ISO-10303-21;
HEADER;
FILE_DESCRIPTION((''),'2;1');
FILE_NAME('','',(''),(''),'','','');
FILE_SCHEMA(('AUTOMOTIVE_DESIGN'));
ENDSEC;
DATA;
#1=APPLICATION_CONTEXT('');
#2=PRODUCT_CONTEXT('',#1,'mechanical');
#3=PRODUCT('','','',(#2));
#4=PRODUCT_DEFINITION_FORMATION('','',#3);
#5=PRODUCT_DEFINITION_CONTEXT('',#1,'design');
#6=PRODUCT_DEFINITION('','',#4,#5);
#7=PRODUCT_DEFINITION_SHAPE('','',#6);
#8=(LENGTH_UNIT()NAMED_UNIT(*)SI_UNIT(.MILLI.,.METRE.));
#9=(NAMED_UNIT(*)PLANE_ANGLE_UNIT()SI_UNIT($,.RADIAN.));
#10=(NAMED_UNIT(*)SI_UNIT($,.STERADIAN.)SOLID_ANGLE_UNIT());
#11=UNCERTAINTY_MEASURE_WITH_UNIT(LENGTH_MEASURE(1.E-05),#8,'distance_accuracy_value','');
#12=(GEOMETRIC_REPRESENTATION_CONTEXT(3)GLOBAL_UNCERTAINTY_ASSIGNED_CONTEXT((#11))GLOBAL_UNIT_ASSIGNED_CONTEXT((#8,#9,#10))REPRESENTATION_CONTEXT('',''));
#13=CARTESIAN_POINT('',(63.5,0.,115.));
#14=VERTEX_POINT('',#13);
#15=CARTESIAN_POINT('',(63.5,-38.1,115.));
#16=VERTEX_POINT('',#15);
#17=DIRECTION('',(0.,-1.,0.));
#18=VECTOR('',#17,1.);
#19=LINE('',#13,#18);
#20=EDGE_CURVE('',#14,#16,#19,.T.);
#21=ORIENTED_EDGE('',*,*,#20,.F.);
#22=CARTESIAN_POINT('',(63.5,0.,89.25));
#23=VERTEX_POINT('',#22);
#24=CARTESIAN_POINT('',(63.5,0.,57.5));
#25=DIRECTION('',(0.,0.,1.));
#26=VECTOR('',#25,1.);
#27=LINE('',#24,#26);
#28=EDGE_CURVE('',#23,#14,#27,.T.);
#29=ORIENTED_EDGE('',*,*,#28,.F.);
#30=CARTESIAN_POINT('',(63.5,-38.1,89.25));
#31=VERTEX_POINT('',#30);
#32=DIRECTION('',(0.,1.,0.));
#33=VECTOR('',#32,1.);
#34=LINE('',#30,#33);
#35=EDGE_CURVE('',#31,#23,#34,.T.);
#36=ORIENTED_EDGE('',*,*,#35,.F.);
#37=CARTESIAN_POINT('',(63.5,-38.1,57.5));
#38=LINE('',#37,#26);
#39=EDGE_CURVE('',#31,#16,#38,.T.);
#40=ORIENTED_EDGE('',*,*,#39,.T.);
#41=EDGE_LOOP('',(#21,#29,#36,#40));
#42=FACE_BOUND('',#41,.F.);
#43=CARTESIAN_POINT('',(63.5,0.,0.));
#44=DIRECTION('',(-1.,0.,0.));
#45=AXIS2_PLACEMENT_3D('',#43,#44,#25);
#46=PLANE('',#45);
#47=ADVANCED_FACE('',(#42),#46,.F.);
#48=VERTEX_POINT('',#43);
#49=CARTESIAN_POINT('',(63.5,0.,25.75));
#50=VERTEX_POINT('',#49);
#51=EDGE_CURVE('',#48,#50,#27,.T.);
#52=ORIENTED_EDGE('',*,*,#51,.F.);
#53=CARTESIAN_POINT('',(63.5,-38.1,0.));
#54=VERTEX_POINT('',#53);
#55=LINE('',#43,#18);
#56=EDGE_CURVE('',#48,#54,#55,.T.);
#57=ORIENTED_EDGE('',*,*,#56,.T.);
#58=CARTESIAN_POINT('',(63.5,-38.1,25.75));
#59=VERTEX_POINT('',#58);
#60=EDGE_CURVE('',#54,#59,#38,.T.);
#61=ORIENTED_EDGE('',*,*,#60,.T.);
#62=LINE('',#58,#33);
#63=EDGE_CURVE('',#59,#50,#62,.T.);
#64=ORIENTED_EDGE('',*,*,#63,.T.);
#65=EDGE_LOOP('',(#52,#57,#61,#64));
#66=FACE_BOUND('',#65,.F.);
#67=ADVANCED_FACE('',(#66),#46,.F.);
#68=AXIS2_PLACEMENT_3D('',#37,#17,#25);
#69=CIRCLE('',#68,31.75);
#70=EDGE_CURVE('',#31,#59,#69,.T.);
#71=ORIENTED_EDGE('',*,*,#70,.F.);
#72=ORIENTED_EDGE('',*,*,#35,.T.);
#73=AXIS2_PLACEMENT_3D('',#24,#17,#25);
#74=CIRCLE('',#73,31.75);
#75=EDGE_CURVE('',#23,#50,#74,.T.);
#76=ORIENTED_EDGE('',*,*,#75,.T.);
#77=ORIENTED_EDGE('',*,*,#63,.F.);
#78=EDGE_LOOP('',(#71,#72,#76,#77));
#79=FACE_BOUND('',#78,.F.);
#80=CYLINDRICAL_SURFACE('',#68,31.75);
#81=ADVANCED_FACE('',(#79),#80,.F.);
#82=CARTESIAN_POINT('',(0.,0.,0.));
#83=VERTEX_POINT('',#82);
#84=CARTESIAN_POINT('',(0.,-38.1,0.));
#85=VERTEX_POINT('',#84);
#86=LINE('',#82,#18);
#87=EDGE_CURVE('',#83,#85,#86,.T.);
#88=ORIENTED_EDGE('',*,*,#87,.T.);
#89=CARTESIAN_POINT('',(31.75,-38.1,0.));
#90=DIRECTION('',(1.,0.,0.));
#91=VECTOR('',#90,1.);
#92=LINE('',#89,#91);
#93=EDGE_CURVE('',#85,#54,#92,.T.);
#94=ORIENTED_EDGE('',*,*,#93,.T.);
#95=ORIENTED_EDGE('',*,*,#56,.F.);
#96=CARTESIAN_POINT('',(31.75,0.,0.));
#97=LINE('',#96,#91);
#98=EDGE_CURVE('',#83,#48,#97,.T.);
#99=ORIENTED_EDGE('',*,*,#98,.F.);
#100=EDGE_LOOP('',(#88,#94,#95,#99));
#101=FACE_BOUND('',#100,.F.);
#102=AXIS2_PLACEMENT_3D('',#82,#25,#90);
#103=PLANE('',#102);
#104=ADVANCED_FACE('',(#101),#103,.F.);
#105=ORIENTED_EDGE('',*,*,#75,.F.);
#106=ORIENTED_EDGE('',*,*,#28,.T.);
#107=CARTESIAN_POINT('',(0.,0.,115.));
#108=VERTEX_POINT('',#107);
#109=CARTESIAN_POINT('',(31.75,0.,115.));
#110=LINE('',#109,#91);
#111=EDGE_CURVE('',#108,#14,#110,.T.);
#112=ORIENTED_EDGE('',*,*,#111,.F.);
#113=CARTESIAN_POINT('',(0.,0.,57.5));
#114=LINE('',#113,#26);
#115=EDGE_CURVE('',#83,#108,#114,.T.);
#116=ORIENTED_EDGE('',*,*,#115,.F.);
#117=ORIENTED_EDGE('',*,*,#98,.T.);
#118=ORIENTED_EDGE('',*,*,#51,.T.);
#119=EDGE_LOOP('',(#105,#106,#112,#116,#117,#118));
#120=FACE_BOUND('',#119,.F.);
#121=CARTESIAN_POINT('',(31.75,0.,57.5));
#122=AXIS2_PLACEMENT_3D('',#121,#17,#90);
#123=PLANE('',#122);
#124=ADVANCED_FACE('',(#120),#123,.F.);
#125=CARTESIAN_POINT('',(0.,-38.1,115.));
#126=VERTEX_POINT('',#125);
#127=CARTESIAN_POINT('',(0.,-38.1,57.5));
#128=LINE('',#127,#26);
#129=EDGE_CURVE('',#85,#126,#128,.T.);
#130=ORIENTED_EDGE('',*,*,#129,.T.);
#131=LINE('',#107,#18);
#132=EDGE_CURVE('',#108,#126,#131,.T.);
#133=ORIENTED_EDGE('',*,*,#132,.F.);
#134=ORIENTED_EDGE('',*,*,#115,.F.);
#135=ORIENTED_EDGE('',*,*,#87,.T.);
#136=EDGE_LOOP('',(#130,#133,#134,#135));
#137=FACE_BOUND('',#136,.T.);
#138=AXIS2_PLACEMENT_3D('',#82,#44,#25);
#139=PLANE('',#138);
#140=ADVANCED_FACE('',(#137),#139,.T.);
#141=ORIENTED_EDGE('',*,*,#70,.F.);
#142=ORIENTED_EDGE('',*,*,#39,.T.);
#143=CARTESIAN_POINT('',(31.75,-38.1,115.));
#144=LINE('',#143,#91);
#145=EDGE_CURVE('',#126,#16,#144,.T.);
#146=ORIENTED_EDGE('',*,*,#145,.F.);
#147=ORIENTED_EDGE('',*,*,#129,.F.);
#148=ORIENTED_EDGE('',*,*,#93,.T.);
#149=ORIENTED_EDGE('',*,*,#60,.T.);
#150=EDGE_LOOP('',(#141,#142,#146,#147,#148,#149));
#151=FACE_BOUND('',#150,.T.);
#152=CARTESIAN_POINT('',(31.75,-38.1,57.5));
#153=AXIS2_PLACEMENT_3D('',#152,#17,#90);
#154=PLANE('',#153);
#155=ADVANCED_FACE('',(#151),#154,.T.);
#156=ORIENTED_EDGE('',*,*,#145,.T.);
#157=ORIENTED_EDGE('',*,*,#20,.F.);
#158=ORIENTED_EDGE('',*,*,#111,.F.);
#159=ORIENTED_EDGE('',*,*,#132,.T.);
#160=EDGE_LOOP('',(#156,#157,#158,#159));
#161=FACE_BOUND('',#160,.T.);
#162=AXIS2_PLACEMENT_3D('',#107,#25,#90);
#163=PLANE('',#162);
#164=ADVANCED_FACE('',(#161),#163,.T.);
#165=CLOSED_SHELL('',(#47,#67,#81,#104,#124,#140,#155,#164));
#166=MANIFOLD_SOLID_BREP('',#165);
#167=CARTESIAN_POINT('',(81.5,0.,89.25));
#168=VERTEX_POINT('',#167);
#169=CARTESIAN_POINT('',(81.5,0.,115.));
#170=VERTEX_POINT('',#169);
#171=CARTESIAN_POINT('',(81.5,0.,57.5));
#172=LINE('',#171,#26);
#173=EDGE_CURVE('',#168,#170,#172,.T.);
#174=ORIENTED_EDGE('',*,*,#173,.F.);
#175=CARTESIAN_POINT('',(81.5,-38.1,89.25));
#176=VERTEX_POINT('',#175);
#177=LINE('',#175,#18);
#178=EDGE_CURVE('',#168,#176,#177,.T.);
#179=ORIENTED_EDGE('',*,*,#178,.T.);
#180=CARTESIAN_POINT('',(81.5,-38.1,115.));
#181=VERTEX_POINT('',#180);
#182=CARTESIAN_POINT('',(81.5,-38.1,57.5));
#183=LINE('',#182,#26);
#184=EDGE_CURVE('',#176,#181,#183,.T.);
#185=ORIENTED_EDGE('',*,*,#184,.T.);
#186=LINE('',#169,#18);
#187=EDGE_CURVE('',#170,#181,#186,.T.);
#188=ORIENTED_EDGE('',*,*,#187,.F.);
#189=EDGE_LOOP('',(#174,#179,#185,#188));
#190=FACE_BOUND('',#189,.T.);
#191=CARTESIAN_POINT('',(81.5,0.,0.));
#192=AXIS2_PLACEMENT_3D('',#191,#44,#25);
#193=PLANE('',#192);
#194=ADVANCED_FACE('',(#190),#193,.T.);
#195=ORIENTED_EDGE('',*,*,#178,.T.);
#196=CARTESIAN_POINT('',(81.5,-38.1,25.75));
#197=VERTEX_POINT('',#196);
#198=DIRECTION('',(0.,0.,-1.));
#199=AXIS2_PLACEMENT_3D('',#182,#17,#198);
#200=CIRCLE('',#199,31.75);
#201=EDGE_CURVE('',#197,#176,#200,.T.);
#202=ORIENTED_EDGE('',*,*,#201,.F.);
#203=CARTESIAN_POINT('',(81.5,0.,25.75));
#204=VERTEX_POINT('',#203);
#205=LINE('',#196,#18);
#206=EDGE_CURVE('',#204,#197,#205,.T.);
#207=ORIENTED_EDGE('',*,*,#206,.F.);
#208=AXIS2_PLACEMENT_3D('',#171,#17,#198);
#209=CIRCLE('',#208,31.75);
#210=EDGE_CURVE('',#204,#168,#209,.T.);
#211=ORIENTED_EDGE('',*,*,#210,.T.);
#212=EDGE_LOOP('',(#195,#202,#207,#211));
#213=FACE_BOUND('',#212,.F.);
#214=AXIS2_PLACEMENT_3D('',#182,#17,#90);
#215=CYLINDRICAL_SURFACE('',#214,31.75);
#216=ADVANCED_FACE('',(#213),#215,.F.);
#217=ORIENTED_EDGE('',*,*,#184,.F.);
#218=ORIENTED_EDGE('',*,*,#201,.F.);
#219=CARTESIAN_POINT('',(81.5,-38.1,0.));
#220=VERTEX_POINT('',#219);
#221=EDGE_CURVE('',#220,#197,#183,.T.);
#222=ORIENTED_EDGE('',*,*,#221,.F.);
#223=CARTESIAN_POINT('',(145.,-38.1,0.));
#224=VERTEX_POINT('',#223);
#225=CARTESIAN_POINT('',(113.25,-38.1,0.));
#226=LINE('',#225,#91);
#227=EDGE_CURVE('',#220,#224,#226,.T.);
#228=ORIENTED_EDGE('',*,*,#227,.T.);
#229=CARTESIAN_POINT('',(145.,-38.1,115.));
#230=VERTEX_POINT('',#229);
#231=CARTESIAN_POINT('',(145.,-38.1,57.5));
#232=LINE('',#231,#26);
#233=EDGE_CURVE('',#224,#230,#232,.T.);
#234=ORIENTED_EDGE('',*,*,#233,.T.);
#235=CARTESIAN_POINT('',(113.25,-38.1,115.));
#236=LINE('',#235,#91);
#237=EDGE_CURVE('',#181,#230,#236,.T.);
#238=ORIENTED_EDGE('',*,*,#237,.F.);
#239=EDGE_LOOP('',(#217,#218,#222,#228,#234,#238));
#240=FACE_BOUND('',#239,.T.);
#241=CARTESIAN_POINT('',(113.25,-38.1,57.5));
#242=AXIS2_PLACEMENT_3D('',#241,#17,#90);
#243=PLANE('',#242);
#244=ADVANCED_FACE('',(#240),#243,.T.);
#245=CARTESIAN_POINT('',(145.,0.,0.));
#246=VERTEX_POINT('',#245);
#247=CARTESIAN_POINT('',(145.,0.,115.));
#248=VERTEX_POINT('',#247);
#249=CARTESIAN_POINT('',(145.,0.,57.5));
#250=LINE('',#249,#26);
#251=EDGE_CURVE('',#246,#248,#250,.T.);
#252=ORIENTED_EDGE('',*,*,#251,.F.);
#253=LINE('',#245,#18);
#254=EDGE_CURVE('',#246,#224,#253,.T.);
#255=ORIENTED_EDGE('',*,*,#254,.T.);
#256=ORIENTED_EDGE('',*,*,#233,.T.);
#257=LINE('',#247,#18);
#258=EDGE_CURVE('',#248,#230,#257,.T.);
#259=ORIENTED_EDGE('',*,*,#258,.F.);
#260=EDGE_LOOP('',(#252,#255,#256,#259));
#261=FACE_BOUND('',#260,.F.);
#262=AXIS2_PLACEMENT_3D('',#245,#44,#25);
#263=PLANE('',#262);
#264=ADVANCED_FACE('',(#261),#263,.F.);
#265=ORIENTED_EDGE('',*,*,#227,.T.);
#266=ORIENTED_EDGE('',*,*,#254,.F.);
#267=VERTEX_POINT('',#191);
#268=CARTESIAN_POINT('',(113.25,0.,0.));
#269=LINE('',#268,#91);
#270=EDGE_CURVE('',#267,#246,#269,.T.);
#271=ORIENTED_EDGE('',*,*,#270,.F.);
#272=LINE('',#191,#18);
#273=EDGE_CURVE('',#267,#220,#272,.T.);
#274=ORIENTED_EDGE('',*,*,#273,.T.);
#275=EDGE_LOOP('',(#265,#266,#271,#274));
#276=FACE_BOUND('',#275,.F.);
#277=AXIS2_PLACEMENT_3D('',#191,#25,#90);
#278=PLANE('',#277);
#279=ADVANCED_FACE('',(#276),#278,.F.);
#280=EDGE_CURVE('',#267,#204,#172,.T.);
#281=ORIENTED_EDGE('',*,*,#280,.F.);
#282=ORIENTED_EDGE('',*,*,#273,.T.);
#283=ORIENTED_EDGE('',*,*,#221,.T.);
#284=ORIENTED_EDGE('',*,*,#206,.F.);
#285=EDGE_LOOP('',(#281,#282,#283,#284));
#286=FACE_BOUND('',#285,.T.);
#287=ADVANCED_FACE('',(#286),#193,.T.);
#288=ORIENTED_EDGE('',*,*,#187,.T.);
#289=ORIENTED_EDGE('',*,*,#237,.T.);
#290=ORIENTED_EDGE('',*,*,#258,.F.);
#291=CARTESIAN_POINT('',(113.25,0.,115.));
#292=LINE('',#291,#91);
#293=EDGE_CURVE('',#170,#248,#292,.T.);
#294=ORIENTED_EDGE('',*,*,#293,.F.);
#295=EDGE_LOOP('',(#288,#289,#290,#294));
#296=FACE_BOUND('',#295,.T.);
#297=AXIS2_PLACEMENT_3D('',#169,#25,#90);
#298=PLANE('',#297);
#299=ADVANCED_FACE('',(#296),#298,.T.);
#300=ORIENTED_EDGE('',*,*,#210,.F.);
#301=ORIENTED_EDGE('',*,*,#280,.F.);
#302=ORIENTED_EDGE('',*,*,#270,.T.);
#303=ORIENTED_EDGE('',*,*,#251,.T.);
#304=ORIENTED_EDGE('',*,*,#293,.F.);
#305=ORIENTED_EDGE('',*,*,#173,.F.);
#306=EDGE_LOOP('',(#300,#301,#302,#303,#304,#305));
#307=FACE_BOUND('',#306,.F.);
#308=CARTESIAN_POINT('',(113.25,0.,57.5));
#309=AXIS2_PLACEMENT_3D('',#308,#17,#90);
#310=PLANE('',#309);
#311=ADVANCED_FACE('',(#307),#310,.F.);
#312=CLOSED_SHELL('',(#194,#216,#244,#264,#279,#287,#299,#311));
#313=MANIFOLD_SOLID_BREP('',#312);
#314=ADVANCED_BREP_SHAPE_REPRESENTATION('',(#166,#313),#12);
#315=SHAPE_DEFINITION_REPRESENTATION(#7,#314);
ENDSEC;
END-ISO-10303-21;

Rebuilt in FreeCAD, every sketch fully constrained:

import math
import FreeCAD as App
import Part
import Sketcher

V = App.Vector
Q = App.Units.Quantity

doc = App.newDocument("Part")
body = doc.addObject("PartDesign::Body", "Body")

sketch1 = body.newObject("Sketcher::SketchObject", "Sketch")
sketch1.AttachmentSupport = (doc.getObject("XZ_Plane"), [""])
sketch1.MapMode = "FlatFace"
sketch1.addGeometry(Part.LineSegment(V(0, 115, 0), V(0, 0, 0)), False)
sketch1.addGeometry(Part.LineSegment(V(0, 0, 0), V(63.5, 0, 0)), False)
sketch1.addGeometry(Part.LineSegment(V(63.5, 0, 0), V(63.5, 115, 0)), False)
sketch1.addGeometry(Part.LineSegment(V(63.5, 115, 0), V(0, 115, 0)), False)
sketch1.addConstraint(Sketcher.Constraint("Coincident", 0, 2, 1, 1))
sketch1.addConstraint(Sketcher.Constraint("Coincident", 1, 2, 2, 1))
sketch1.addConstraint(Sketcher.Constraint("Coincident", 2, 2, 3, 1))
sketch1.addConstraint(Sketcher.Constraint("Coincident", 3, 2, 0, 1))
sketch1.addConstraint(Sketcher.Constraint("Vertical", 0))
sketch1.addConstraint(Sketcher.Constraint("Horizontal", 1))
sketch1.addConstraint(Sketcher.Constraint("Vertical", 2))
sketch1.addConstraint(Sketcher.Constraint("Horizontal", 3))
sketch1.addConstraint(Sketcher.Constraint("Coincident", 0, 2, -1, 1))
sketch1.addConstraint(Sketcher.Constraint("DistanceX", 1, 1, 1, 2, Q("2.5 in")))
sketch1.addConstraint(Sketcher.Constraint("DistanceY", 0, 2, 0, 1, 115.0))
pad1 = body.newObject("PartDesign::Pad", "Pad")
pad1.Profile = sketch1
pad1.Length = Q("1.5 in")

sketch2 = body.newObject("Sketcher::SketchObject", "Sketch001")
sketch2.AttachmentSupport = (doc.getObject("XZ_Plane"), [""])
sketch2.MapMode = "FlatFace"
sketch2.AttachmentOffset = App.Placement(V(0, 0, 1.5 * 25.4), App.Rotation())
sketch2.addGeometry(Part.LineSegment(V(63.5, 25.75, 0), V(63.5, 89.25, 0)), False)
sketch2.addGeometry(Part.ArcOfCircle(Part.Circle(V(63.5, 57.5, 0), V(0, 0, 1), 31.75), math.radians(90), math.radians(270)), False)
sketch2.addConstraint(Sketcher.Constraint("Coincident", 0, 1, 1, 2))
sketch2.addConstraint(Sketcher.Constraint("Coincident", 1, 1, 0, 2))
sketch2.addConstraint(Sketcher.Constraint("Vertical", 0))
sketch2.addConstraint(Sketcher.Constraint("Vertical", 1, 3, 0, 1))
sketch2.addConstraint(Sketcher.Constraint("Radius", 1, Q("1.25 in")))
sketch2.addConstraint(Sketcher.Constraint("DistanceX", -1, 1, 1, 3, Q("2.5 in")))
sketch2.addConstraint(Sketcher.Constraint("DistanceY", -1, 1, 1, 3, 57.5))
pocket1 = body.newObject("PartDesign::Pocket", "Pocket")
pocket1.Profile = sketch2
pocket1.Length = Q("3 in")
body2 = doc.addObject("PartDesign::Body", "Body001")

sketch3 = body2.newObject("Sketcher::SketchObject", "Sketch002")
sketch3.AttachmentSupport = (doc.getObject("XZ_Plane001"), [""])
sketch3.MapMode = "FlatFace"
sketch3.addGeometry(Part.LineSegment(V(81.5, 115, 0), V(81.5, 0, 0)), False)
sketch3.addGeometry(Part.LineSegment(V(81.5, 0, 0), V(145, 0, 0)), False)
sketch3.addGeometry(Part.LineSegment(V(145, 0, 0), V(145, 115, 0)), False)
sketch3.addGeometry(Part.LineSegment(V(145, 115, 0), V(81.5, 115, 0)), False)
sketch3.addConstraint(Sketcher.Constraint("Coincident", 0, 2, 1, 1))
sketch3.addConstraint(Sketcher.Constraint("Coincident", 1, 2, 2, 1))
sketch3.addConstraint(Sketcher.Constraint("Coincident", 2, 2, 3, 1))
sketch3.addConstraint(Sketcher.Constraint("Coincident", 3, 2, 0, 1))
sketch3.addConstraint(Sketcher.Constraint("Vertical", 0))
sketch3.addConstraint(Sketcher.Constraint("Horizontal", 1))
sketch3.addConstraint(Sketcher.Constraint("Vertical", 2))
sketch3.addConstraint(Sketcher.Constraint("Horizontal", 3))
sketch3.addConstraint(Sketcher.Constraint("PointOnObject", 0, 2, -1))
sketch3.addConstraint(Sketcher.Constraint("DistanceX", 1, 1, 1, 2, Q("2.5 in")))
sketch3.addConstraint(Sketcher.Constraint("DistanceY", 0, 2, 0, 1, 115.0))
sketch3.addConstraint(Sketcher.Constraint("DistanceX", -1, 1, 0, 2, 81.5))
pad2 = body2.newObject("PartDesign::Pad", "Pad001")
pad2.Profile = sketch3
pad2.Length = Q("1.5 in")

sketch4 = body2.newObject("Sketcher::SketchObject", "Sketch003")
sketch4.AttachmentSupport = (doc.getObject("XZ_Plane001"), [""])
sketch4.MapMode = "FlatFace"
sketch4.AttachmentOffset = App.Placement(V(0, 0, 1.5 * 25.4), App.Rotation())
sketch4.addGeometry(Part.Circle(V(81.5, 57.5, 0), V(0, 0, 1), 31.75), False)
sketch4.addConstraint(Sketcher.Constraint("Diameter", 0, Q("2.5 in")))
sketch4.addConstraint(Sketcher.Constraint("DistanceX", -1, 1, 0, 3, 81.5))
sketch4.addConstraint(Sketcher.Constraint("DistanceY", -1, 1, 0, 3, 57.5))
pocket2 = body2.newObject("PartDesign::Pocket", "Pocket001")
pocket2.Profile = sketch4
pocket2.Length = Q("3 in")

doc.recompute()
